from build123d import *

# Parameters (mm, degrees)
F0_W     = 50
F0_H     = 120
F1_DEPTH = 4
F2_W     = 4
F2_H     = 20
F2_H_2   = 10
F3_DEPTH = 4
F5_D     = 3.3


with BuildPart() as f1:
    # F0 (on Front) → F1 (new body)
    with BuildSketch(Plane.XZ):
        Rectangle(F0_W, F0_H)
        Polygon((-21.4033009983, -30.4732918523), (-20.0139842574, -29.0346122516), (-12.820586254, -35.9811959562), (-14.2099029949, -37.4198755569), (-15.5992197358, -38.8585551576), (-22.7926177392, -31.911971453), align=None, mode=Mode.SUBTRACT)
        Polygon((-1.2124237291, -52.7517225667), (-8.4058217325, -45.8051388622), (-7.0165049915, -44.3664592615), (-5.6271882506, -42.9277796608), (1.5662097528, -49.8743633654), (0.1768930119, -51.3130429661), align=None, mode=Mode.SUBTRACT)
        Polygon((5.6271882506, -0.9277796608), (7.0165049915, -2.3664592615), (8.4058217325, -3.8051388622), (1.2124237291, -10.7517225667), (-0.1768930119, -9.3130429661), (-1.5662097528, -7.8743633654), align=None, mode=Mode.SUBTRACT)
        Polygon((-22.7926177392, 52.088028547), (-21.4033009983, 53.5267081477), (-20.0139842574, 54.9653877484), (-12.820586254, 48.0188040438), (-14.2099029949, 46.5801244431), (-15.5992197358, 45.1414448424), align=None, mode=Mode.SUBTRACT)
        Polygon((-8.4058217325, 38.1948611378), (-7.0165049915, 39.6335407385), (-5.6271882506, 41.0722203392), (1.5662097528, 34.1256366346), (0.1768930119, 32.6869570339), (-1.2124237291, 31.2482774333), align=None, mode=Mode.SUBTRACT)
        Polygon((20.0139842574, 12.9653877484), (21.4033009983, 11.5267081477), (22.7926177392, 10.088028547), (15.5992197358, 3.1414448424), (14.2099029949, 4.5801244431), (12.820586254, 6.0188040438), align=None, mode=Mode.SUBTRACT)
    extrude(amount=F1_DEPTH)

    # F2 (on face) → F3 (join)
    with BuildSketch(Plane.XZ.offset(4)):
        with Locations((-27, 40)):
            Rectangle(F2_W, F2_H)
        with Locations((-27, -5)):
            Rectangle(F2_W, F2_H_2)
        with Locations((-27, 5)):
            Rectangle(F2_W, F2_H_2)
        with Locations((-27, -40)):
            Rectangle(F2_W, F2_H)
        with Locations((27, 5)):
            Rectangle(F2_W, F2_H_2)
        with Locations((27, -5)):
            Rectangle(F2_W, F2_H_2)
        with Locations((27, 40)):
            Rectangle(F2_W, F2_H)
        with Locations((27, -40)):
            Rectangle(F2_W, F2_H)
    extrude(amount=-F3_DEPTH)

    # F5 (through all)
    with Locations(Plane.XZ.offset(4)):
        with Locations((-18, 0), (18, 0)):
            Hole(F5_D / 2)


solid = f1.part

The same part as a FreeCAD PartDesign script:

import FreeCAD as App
import Part
import Sketcher
Q = App.Units.Quantity

doc = App.newDocument("Part")
body = doc.addObject("PartDesign::Body", "Body")

# Sketch on XZ plane
sketch1 = body.newObject("Sketcher::SketchObject", "Sketch")
sketch1.AttachmentSupport = (doc.getObject("XZ_Plane"), [""])
sketch1.MapMode = "FlatFace"
sketch1.addGeometry([
    Part.LineSegment(App.Vector(-25, 60, 0), App.Vector(-25, -60, 0)),  # 0
    Part.LineSegment(App.Vector(-25, -60, 0), App.Vector(25, -60, 0)),  # 1
    Part.LineSegment(App.Vector(25, -60, 0), App.Vector(25, 60, 0)),  # 2
    Part.LineSegment(App.Vector(25, 60, 0), App.Vector(-25, 60, 0)),  # 3
    Part.LineSegment(App.Vector(-22.8, -31.9, 0), App.Vector(-20, -29, 0)),  # 4
    Part.LineSegment(App.Vector(-20, -29, 0), App.Vector(-12.8, -36, 0)),  # 5
    Part.LineSegment(App.Vector(-12.8, -36, 0), App.Vector(-15.6, -38.9, 0)),  # 6
    Part.LineSegment(App.Vector(-15.6, -38.9, 0), App.Vector(-22.8, -31.9, 0)),  # 7
    Part.LineSegment(App.Vector(0.2, -51.3, 0), App.Vector(-1.2, -52.8, 0)),  # 8
    Part.LineSegment(App.Vector(-1.2, -52.8, 0), App.Vector(-8.4, -45.8, 0)),  # 9
    Part.LineSegment(App.Vector(-8.4, -45.8, 0), App.Vector(-7, -44.4, 0)),  # 10
    Part.LineSegment(App.Vector(-7, -44.4, 0), App.Vector(-5.6, -42.9, 0)),  # 11
    Part.LineSegment(App.Vector(-5.6, -42.9, 0), App.Vector(1.6, -49.9, 0)),  # 12
    Part.LineSegment(App.Vector(1.6, -49.9, 0), App.Vector(0.2, -51.3, 0)),  # 13
    Part.LineSegment(App.Vector(-1.6, -7.9, 0), App.Vector(5.6, -0.9, 0)),  # 14
    Part.LineSegment(App.Vector(5.6, -0.9, 0), App.Vector(7, -2.4, 0)),  # 15
    Part.LineSegment(App.Vector(7, -2.4, 0), App.Vector(8.4, -3.8, 0)),  # 16
    Part.LineSegment(App.Vector(8.4, -3.8, 0), App.Vector(1.2, -10.8, 0)),  # 17
    Part.LineSegment(App.Vector(1.2, -10.8, 0), App.Vector(-0.2, -9.3, 0)),  # 18
    Part.LineSegment(App.Vector(-0.2, -9.3, 0), App.Vector(-1.6, -7.9, 0)),  # 19
    Part.LineSegment(App.Vector(-15.6, 45.1, 0), App.Vector(-22.8, 52.1, 0)),  # 20
    Part.LineSegment(App.Vector(-22.8, 52.1, 0), App.Vector(-20, 55, 0)),  # 21
    Part.LineSegment(App.Vector(-20, 55, 0), App.Vector(-12.8, 48, 0)),  # 22
    Part.LineSegment(App.Vector(-12.8, 48, 0), App.Vector(-15.6, 45.1, 0)),  # 23
    Part.LineSegment(App.Vector(-1.2, 31.2, 0), App.Vector(-8.4, 38.2, 0)),  # 24
    Part.LineSegment(App.Vector(-8.4, 38.2, 0), App.Vector(-7, 39.6, 0)),  # 25
    Part.LineSegment(App.Vector(-7, 39.6, 0), App.Vector(-5.6, 41.1, 0)),  # 26
    Part.LineSegment(App.Vector(-5.6, 41.1, 0), App.Vector(1.6, 34.1, 0)),  # 27
    Part.LineSegment(App.Vector(1.6, 34.1, 0), App.Vector(0.2, 32.7, 0)),  # 28
    Part.LineSegment(App.Vector(0.2, 32.7, 0), App.Vector(-1.2, 31.2, 0)),  # 29
    Part.LineSegment(App.Vector(12.8, 6, 0), App.Vector(20, 13, 0)),  # 30
    Part.LineSegment(App.Vector(20, 13, 0), App.Vector(22.8, 10.1, 0)),  # 31
    Part.LineSegment(App.Vector(22.8, 10.1, 0), App.Vector(15.6, 3.1, 0)),  # 32
    Part.LineSegment(App.Vector(15.6, 3.1, 0), App.Vector(12.8, 6, 0)),  # 33
], False)
sketch1.addConstraint([
    Sketcher.Constraint("Coincident", 0, 2, 1, 1),
    Sketcher.Constraint("Coincident", 1, 2, 2, 1),
    Sketcher.Constraint("Coincident", 2, 2, 3, 1),
    Sketcher.Constraint("Coincident", 3, 2, 0, 1),
    Sketcher.Constraint("Coincident", 4, 2, 5, 1),
    Sketcher.Constraint("Coincident", 5, 2, 6, 1),
    Sketcher.Constraint("Coincident", 6, 2, 7, 1),
    Sketcher.Constraint("Coincident", 7, 2, 4, 1),
    Sketcher.Constraint("Coincident", 8, 2, 9, 1),
    Sketcher.Constraint("Coincident", 9, 2, 10, 1),
    Sketcher.Constraint("Coincident", 10, 2, 11, 1),
    Sketcher.Constraint("Coincident", 11, 2, 12, 1),
    Sketcher.Constraint("Coincident", 12, 2, 13, 1),
    Sketcher.Constraint("Coincident", 13, 2, 8, 1),
    Sketcher.Constraint("Coincident", 14, 2, 15, 1),
    Sketcher.Constraint("Coincident", 15, 2, 16, 1),
    Sketcher.Constraint("Coincident", 16, 2, 17, 1),
    Sketcher.Constraint("Coincident", 17, 2, 18, 1),
    Sketcher.Constraint("Coincident", 18, 2, 19, 1),
    Sketcher.Constraint("Coincident", 19, 2, 14, 1),
    Sketcher.Constraint("Coincident", 20, 2, 21, 1),
    Sketcher.Constraint("Coincident", 21, 2, 22, 1),
    Sketcher.Constraint("Coincident", 22, 2, 23, 1),
    Sketcher.Constraint("Coincident", 23, 2, 20, 1),
    Sketcher.Constraint("Coincident", 24, 2, 25, 1),
    Sketcher.Constraint("Coincident", 25, 2, 26, 1),
    Sketcher.Constraint("Coincident", 26, 2, 27, 1),
    Sketcher.Constraint("Coincident", 27, 2, 28, 1),
    Sketcher.Constraint("Coincident", 28, 2, 29, 1),
    Sketcher.Constraint("Coincident", 29, 2, 24, 1),
    Sketcher.Constraint("Coincident", 30, 2, 31, 1),
    Sketcher.Constraint("Coincident", 31, 2, 32, 1),
    Sketcher.Constraint("Coincident", 32, 2, 33, 1),
    Sketcher.Constraint("Coincident", 33, 2, 30, 1),
    Sketcher.Constraint("Vertical", 0),
    Sketcher.Constraint("Horizontal", 1),
    Sketcher.Constraint("Vertical", 2),
    Sketcher.Constraint("Horizontal", 3),
    Sketcher.Constraint("Symmetric", 0, 2, 2, 2, -1, 1),
    Sketcher.Constraint("Perpendicular", 4, 5),
    Sketcher.Constraint("Perpendicular", 5, 6),
    Sketcher.Constraint("Perpendicular", 6, 7),
    Sketcher.Constraint("Perpendicular", 7, 8),
    Sketcher.Constraint("Perpendicular", 8, 9),
    Sketcher.Constraint("Perpendicular", 9, 10),
    Sketcher.Constraint("Parallel", 10, 11),
    Sketcher.Constraint("Perpendicular", 11, 12),
    Sketcher.Constraint("Perpendicular", 12, 13),
    Sketcher.Constraint("Perpendicular", 14, 15),
    Sketcher.Constraint("Parallel", 15, 16),
    Sketcher.Constraint("Perpendicular", 16, 17),
    Sketcher.Constraint("Perpendicular", 17, 18),
    Sketcher.Constraint("Parallel", 18, 19),
    Sketcher.Constraint("Perpendicular", 13, 20),
    Sketcher.Constraint("Perpendicular", 20, 21),
    Sketcher.Constraint("Perpendicular", 21, 22),
    Sketcher.Constraint("Perpendicular", 22, 23),
    Sketcher.Constraint("Perpendicular", 23, 24),
    Sketcher.Constraint("Perpendicular", 24, 25),
    Sketcher.Constraint("Parallel", 25, 26),
    Sketcher.Constraint("Perpendicular", 26, 27),
    Sketcher.Constraint("Perpendicular", 27, 28),
    Sketcher.Constraint("Parallel", 28, 29),
    Sketcher.Constraint("Perpendicular", 19, 30),
    Sketcher.Constraint("Perpendicular", 30, 31),
    Sketcher.Constraint("Perpendicular", 31, 32),
    Sketcher.Constraint("Perpendicular", 32, 33),
    Sketcher.Constraint("Vertical", 7, 2, 20, 2),
    Sketcher.Constraint("Vertical", 4, 2, 21, 2),
    Sketcher.Constraint("Vertical", 5, 2, 22, 2),
    Sketcher.Constraint("Vertical", 9, 2, 24, 2),
    Sketcher.Constraint("Vertical", 10, 2, 25, 2),
    Sketcher.Constraint("Vertical", 11, 2, 26, 2),
    Sketcher.Constraint("Vertical", 12, 2, 27, 2),
    Sketcher.Constraint("Vertical", 13, 2, 28, 2),
    Sketcher.Constraint("Equal", 7, 9),
    Sketcher.Constraint("Equal", 8, 10),
    Sketcher.Constraint("Equal", 10, 11),
    Sketcher.Constraint("Equal", 12, 14),
    Sketcher.Constraint("Equal", 13, 15),
    Sketcher.Constraint("Equal", 15, 16),
    Sketcher.Constraint("Equal", 16, 18),
    Sketcher.Constraint("Equal", 27, 30),
    Sketcher.Constraint("Equal", 23, 31),
    Sketcher.Constraint("DistanceX", 1, 1, 1, 2, Q("50 mm")),
    Sketcher.Constraint("DistanceY", 0, 2, 0, 1, Q("120 mm")),
    Sketcher.Constraint("Angle", 4, Q("46 deg")),
    Sketcher.Constraint("Angle", 14, Q("44 deg")),
    Sketcher.Constraint("Distance", 4, Q("4 mm")),
    Sketcher.Constraint("Distance", 5, Q("10 mm")),
    Sketcher.Constraint("Distance", 8, Q("2 mm")),
    Sketcher.Constraint("DistanceY", 11, 2, 14, 2, Q("42 mm")),
    Sketcher.Constraint("DistanceX", 6, 2, 9, 2, Q("7.193398 mm")),
    Sketcher.Constraint("DistanceX", 16, 2, 32, 2, Q("7.193398 mm")),
    Sketcher.Constraint("DistanceX", 6, 2, -1, 1, Q("15.59922 mm")),
    Sketcher.Constraint("DistanceY", 7, 2, -1, 1, Q("31.911971 mm")),
    Sketcher.Constraint("DistanceY", 9, 2, -1, 1, Q("45.805139 mm")),
    Sketcher.Constraint("DistanceX", -1, 1, 14, 2, Q("5.627188 mm")),
    Sketcher.Constraint("DistanceY", -1, 1, 20, 2, Q("52.088029 mm")),
    Sketcher.Constraint("DistanceY", -1, 1, 24, 2, Q("38.194861 mm")),
    Sketcher.Constraint("DistanceY", -1, 1, 31, 2, Q("10.088029 mm")),
])
pad1 = body.newObject("PartDesign::Pad", "Pad")
pad1.Profile = sketch1
pad1.Length = 4

# Sketch on XZ plane
sketch2 = body.newObject("Sketcher::SketchObject", "Sketch001")
sketch2.AttachmentSupport = (doc.getObject("XZ_Plane"), [""])
sketch2.MapMode = "FlatFace"
sketch2.AttachmentOffset = App.Placement(App.Vector(0, 0, 4), App.Rotation())
sketch2.addGeometry([
    Part.LineSegment(App.Vector(-29, 50, 0), App.Vector(-29, 30, 0)),  # 0
    Part.LineSegment(App.Vector(-29, 30, 0), App.Vector(-25, 30, 0)),  # 1
    Part.LineSegment(App.Vector(-25, 30, 0), App.Vector(-25, 50, 0)),  # 2
    Part.LineSegment(App.Vector(-25, 50, 0), App.Vector(-29, 50, 0)),  # 3
    Part.LineSegment(App.Vector(-29, -10, 0), App.Vector(-25, -10, 0)),  # 4
    Part.LineSegment(App.Vector(-25, -10, 0), App.Vector(-25, 10, 0)),  # 5
    Part.LineSegment(App.Vector(-25, 10, 0), App.Vector(-29, 10, 0)),  # 6
    Part.LineSegment(App.Vector(-29, 10, 0), App.Vector(-29, -10, 0)),  # 7
    Part.LineSegment(App.Vector(-29, -30, 0), App.Vector(-29, -50, 0)),  # 8
    Part.LineSegment(App.Vector(-29, -50, 0), App.Vector(-25, -50, 0)),  # 9
    Part.LineSegment(App.Vector(-25, -50, 0), App.Vector(-25, -30, 0)),  # 10
    Part.LineSegment(App.Vector(-25, -30, 0), App.Vector(-29, -30, 0)),  # 11
    Part.LineSegment(App.Vector(25, 10, 0), App.Vector(25, -10, 0)),  # 12
    Part.LineSegment(App.Vector(25, -10, 0), App.Vector(29, -10, 0)),  # 13
    Part.LineSegment(App.Vector(29, -10, 0), App.Vector(29, 10, 0)),  # 14
    Part.LineSegment(App.Vector(29, 10, 0), App.Vector(25, 10, 0)),  # 15
    Part.LineSegment(App.Vector(25, 50, 0), App.Vector(25, 30, 0)),  # 16
    Part.LineSegment(App.Vector(25, 30, 0), App.Vector(29, 30, 0)),  # 17
    Part.LineSegment(App.Vector(29, 30, 0), App.Vector(29, 50, 0)),  # 18
    Part.LineSegment(App.Vector(29, 50, 0), App.Vector(25, 50, 0)),  # 19
    Part.LineSegment(App.Vector(25, -30, 0), App.Vector(25, -50, 0)),  # 20
    Part.LineSegment(App.Vector(25, -50, 0), App.Vector(29, -50, 0)),  # 21
    Part.LineSegment(App.Vector(29, -50, 0), App.Vector(29, -30, 0)),  # 22
    Part.LineSegment(App.Vector(29, -30, 0), App.Vector(25, -30, 0)),  # 23
], False)
sketch2.addConstraint([
    Sketcher.Constraint("Coincident", 0, 2, 1, 1),
    Sketcher.Constraint("Coincident", 1, 2, 2, 1),
    Sketcher.Constraint("Coincident", 2, 2, 3, 1),
    Sketcher.Constraint("Coincident", 3, 2, 0, 1),
    Sketcher.Constraint("Coincident", 4, 2, 5, 1),
    Sketcher.Constraint("Coincident", 5, 2, 6, 1),
    Sketcher.Constraint("Coincident", 6, 2, 7, 1),
    Sketcher.Constraint("Coincident", 7, 2, 4, 1),
    Sketcher.Constraint("Coincident", 8, 2, 9, 1),
    Sketcher.Constraint("Coincident", 9, 2, 10, 1),
    Sketcher.Constraint("Coincident", 10, 2, 11, 1),
    Sketcher.Constraint("Coincident", 11, 2, 8, 1),
    Sketcher.Constraint("Coincident", 12, 2, 13, 1),
    Sketcher.Constraint("Coincident", 13, 2, 14, 1),
    Sketcher.Constraint("Coincident", 14, 2, 15, 1),
    Sketcher.Constraint("Coincident", 15, 2, 12, 1),
    Sketcher.Constraint("Coincident", 16, 2, 17, 1),
    Sketcher.Constraint("Coincident", 17, 2, 18, 1),
    Sketcher.Constraint("Coincident", 18, 2, 19, 1),
    Sketcher.Constraint("Coincident", 19, 2, 16, 1),
    Sketcher.Constraint("Coincident", 20, 2, 21, 1),
    Sketcher.Constraint("Coincident", 21, 2, 22, 1),
    Sketcher.Constraint("Coincident", 22, 2, 23, 1),
    Sketcher.Constraint("Coincident", 23, 2, 20, 1),
    Sketcher.Constraint("Vertical", 0),
    Sketcher.Constraint("Horizontal", 1),
    Sketcher.Constraint("Vertical", 2),
    Sketcher.Constraint("Horizontal", 3),
    Sketcher.Constraint("Horizontal", 4),
    Sketcher.Constraint("Vertical", 5),
    Sketcher.Constraint("Horizontal", 6),
    Sketcher.Constraint("Vertical", 7),
    Sketcher.Constraint("Vertical", 8),
    Sketcher.Constraint("Horizontal", 9),
    Sketcher.Constraint("Vertical", 10),
    Sketcher.Constraint("Horizontal", 11),
    Sketcher.Constraint("Vertical", 12),
    Sketcher.Constraint("Horizontal", 13),
    Sketcher.Constraint("Vertical", 14),
    Sketcher.Constraint("Horizontal", 15),
    Sketcher.Constraint("Vertical", 16),
    Sketcher.Constraint("Horizontal", 17),
    Sketcher.Constraint("Vertical", 18),
    Sketcher.Constraint("Horizontal", 19),
    Sketcher.Constraint("Vertical", 20),
    Sketcher.Constraint("Horizontal", 21),
    Sketcher.Constraint("Vertical", 22),
    Sketcher.Constraint("Horizontal", 23),
    Sketcher.Constraint("Symmetric", 5, 2, 12, 2, -1, 1),
    Sketcher.Constraint("Symmetric", 7, 2, 14, 2, -1, 1),
    Sketcher.Constraint("Symmetric", 10, 2, 16, 2, -1, 1),
    Sketcher.Constraint("Symmetric", 8, 2, 18, 2, -1, 1),
    Sketcher.Constraint("Symmetric", 2, 2, 20, 2, -1, 1),
    Sketcher.Constraint("Symmetric", 0, 2, 22, 2, -1, 1),
    Sketcher.Constraint("Symmetric", 1, 2, 16, 2, -2),
    Sketcher.Constraint("Symmetric", 3, 2, 18, 2, -2),
    Sketcher.Constraint("Horizontal", 7, 2, 12, 2),
    Sketcher.Constraint("Vertical", 2, 2, 4, 2),
    Sketcher.Constraint("Vertical", 3, 2, 6, 2),
    Sketcher.Constraint("Equal", 2, 5),
    Sketcher.Constraint("DistanceX", 1, 1, 1, 2, Q("4 mm")),
    Sketcher.Constraint("DistanceY", 0, 2, 0, 1, Q("20 mm")),
    Sketcher.Constraint("DistanceX", 0, 2, -1, 1, Q("29 mm")),
    Sketcher.Constraint("DistanceY", -1, 1, 0, 2, Q("30 mm")),
])
pad2 = body.newObject("PartDesign::Pad", "Pad001")
pad2.Profile = sketch2
pad2.Length = 4
pad2.Reversed = True

# Sketch on XZ plane
sketch3 = body.newObject("Sketcher::SketchObject", "Sketch002")
sketch3.AttachmentSupport = (doc.getObject("XZ_Plane"), [""])
sketch3.MapMode = "FlatFace"
sketch3.AttachmentOffset = App.Placement(App.Vector(0, 0, 4), App.Rotation())
sketch3.addGeometry([
    Part.Circle(App.Vector(-18, 0, 0), App.Vector(0, 0, 1), 1.6),
    Part.Circle(App.Vector(18, 0, 0), App.Vector(0, 0, 1), 1.6),
], False)
sketch3.addConstraint([
    Sketcher.Constraint("Equal", 0, 1),
    Sketcher.Constraint("Symmetric", 0, 3, 1, 3, -1, 1),
    Sketcher.Constraint("PointOnObject", 0, 3, -1),
    Sketcher.Constraint("Diameter", 0, Q("3.3 mm")),
    Sketcher.Constraint("DistanceX", 0, 3, -1, 1, Q("18 mm")),
])
doc.recompute()
hole = body.newObject("PartDesign::Hole", "Hole")
hole.Profile = sketch3
hole.ThreadType = "None"
hole.Diameter = 3.3
hole.DepthType = "ThroughAll"

doc.recompute()
